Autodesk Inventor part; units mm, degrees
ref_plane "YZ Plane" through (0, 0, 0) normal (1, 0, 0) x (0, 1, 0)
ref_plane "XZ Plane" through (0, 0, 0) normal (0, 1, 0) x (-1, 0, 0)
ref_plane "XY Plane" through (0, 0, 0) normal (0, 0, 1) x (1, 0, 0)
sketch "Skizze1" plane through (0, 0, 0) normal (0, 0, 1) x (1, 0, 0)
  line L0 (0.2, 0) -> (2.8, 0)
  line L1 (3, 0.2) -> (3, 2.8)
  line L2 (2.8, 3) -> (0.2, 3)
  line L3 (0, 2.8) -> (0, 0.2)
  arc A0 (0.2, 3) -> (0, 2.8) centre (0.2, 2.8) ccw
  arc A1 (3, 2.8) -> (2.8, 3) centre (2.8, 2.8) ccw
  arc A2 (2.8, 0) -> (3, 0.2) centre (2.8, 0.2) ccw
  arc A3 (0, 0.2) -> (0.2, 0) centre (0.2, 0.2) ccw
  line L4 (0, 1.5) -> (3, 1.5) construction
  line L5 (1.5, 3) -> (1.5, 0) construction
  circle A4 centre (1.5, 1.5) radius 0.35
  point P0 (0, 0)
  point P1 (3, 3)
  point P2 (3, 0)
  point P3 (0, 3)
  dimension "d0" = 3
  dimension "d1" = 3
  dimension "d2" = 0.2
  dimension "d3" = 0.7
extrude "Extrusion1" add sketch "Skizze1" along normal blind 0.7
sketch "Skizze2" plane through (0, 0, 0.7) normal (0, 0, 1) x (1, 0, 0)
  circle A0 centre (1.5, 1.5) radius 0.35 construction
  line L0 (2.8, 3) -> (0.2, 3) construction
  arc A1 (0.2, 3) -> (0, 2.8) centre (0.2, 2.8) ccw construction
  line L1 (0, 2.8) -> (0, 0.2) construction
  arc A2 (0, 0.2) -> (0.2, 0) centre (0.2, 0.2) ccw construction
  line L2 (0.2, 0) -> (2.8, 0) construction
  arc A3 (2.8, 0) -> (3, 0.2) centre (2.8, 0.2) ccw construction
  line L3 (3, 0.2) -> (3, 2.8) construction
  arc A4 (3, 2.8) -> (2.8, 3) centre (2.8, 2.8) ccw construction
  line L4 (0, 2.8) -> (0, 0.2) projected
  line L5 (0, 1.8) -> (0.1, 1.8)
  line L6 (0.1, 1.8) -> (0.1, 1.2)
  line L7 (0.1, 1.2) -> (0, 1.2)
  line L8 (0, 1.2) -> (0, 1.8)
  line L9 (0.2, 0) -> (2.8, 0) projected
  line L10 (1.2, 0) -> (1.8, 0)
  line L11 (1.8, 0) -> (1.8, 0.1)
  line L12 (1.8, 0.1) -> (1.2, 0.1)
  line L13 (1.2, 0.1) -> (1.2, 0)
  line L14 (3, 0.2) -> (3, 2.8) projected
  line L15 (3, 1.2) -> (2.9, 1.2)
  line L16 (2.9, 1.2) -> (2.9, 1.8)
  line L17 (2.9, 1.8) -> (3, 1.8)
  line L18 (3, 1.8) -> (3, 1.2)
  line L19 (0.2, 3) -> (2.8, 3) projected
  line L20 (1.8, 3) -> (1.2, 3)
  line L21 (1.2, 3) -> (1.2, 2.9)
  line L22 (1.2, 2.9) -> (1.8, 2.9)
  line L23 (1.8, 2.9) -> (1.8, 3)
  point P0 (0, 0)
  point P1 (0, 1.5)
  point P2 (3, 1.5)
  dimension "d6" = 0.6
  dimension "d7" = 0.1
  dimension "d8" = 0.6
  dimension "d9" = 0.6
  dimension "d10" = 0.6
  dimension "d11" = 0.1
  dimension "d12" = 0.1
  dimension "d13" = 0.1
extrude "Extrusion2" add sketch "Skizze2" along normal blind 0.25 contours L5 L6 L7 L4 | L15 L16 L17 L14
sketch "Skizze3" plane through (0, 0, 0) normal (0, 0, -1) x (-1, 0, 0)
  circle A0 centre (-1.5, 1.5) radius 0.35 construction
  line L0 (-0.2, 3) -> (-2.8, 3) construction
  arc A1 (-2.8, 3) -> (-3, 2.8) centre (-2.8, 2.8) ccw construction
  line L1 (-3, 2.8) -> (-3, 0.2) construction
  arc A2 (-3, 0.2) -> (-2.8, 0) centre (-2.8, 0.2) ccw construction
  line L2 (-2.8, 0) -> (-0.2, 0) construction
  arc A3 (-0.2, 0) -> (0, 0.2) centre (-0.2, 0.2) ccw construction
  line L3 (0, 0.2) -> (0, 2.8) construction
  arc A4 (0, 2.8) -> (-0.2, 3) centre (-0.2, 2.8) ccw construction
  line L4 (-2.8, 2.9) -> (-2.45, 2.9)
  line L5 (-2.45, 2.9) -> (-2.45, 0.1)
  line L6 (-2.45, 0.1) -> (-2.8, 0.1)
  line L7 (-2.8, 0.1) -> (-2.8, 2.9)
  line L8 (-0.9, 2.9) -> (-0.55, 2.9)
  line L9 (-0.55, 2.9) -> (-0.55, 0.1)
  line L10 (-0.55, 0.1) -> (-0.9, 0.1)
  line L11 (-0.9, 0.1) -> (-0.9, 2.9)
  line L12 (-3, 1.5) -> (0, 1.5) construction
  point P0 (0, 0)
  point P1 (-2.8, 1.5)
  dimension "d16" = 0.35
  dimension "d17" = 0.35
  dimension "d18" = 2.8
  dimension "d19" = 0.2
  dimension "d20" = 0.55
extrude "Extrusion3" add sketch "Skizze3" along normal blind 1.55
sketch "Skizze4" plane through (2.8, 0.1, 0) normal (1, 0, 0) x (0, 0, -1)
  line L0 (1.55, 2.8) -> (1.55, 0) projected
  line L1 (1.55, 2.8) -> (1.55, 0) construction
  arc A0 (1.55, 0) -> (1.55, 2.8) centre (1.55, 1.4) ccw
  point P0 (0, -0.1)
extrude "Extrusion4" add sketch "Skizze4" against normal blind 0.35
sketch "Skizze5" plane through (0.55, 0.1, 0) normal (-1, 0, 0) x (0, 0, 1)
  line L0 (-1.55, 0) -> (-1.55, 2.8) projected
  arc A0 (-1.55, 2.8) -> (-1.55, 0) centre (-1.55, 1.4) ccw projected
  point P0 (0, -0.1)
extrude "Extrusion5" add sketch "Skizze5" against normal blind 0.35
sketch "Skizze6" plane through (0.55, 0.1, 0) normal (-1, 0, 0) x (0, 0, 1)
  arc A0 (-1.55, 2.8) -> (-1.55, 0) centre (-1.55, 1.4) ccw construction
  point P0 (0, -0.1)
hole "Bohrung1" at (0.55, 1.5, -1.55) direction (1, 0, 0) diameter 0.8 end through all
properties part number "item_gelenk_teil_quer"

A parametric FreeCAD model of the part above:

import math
import FreeCAD as App
import Part
import Sketcher

doc = App.newDocument("Part")
params = doc.addObject("Spreadsheet::Sheet", "Params")
for row, (alias, value) in enumerate([
    ("sketch1_diameter", "0.7 mm"),
    ("sketch1_radius", "0.2 mm"),
    ("pad1_length", "0.7 mm"),
    ("sketch2_width", "0.1 mm"),
    ("sketch2_height", "0.6 mm"),
    ("pad2_length", "0.25 mm"),
    ("sketch3_height", "2.8 mm"),
    ("sketch3_width", "0.35 mm"),
    ("pad3_length", "1.55 mm"),
    ("sketch4_radius", "1.4 mm"),
    ("pad4_length", "0.35 mm"),
    ("sketch5_radius", "1.4 mm"),
    ("pad5_length", "0.35 mm"),
    ("sketch6_diameter", "0.8 mm"),
    ("hole_diameter", "0.8 mm"),
], start=1):
    params.set(f"A{row}", alias)
    params.set(f"B{row}", "=" + value)
    params.setAlias(f"B{row}", alias)

body = doc.addObject("PartDesign::Body", "Body")

sketch1 = body.newObject("Sketcher::SketchObject", "Sketch")
sketch1.AttachmentSupport = (doc.getObject("XY_Plane"), [""])
sketch1.MapMode = "FlatFace"
sketch1.addGeometry([
    Part.ArcOfCircle(Part.Circle(App.Vector(0.2, 0.2, 0), App.Vector(0, 0, 1), 0.2), math.radians(180), math.radians(270)),
    Part.LineSegment(App.Vector(0.2, 0, 0), App.Vector(2.8, 0, 0)),
    Part.ArcOfCircle(Part.Circle(App.Vector(2.8, 0.2, 0), App.Vector(0, 0, 1), 0.2), math.radians(-90), math.radians(0)),
    Part.LineSegment(App.Vector(3, 0.2, 0), App.Vector(3, 2.8, 0)),
    Part.ArcOfCircle(Part.Circle(App.Vector(2.8, 2.8, 0), App.Vector(0, 0, 1), 0.2), math.radians(0), math.radians(90)),
    Part.LineSegment(App.Vector(2.8, 3, 0), App.Vector(0.2, 3, 0)),
    Part.ArcOfCircle(Part.Circle(App.Vector(0.2, 2.8, 0), App.Vector(0, 0, 1), 0.2), math.radians(90), math.radians(180)),
    Part.LineSegment(App.Vector(0, 2.8, 0), App.Vector(0, 0.2, 0)),
    Part.Circle(App.Vector(1.5, 1.5, 0), App.Vector(0, 0, 1), 0.35),
], False)
sketch1.addConstraint([
    Sketcher.Constraint("Tangent", 0, 2, 1, 1),
    Sketcher.Constraint("Tangent", 1, 2, 2, 1),
    Sketcher.Constraint("Tangent", 2, 2, 3, 1),
    Sketcher.Constraint("Tangent", 3, 2, 4, 1),
    Sketcher.Constraint("Tangent", 4, 2, 5, 1),
    Sketcher.Constraint("Tangent", 5, 2, 6, 1),
    Sketcher.Constraint("Tangent", 6, 2, 7, 1),
    Sketcher.Constraint("Tangent", 7, 2, 0, 1),
    Sketcher.Constraint("Horizontal", 1),
    Sketcher.Constraint("Vertical", 3),
    Sketcher.Constraint("Horizontal", 5),
    Sketcher.Constraint("Vertical", 7),
    Sketcher.Constraint("Equal", 0, 2),
    Sketcher.Constraint("Equal", 2, 4),
    Sketcher.Constraint("Equal", 4, 6),
    Sketcher.Constraint("PointOnObject", 0, 2, -1),
    Sketcher.Constraint("PointOnObject", 6, 2, -2),
    Sketcher.Constraint("Equal", 5, 3),
    Sketcher.Constraint("Diameter", 8, 0.7),
    Sketcher.Constraint("Radius", 0, 0.2),
    Sketcher.Constraint("DistanceX", -1, 1, 2, 2, 3.0),
    Sketcher.Constraint("DistanceX", -1, 1, 8, 3, 1.5),
    Sketcher.Constraint("DistanceY", -1, 1, 8, 3, 1.5),
])
sketch1.setExpression("Constraints[18]", "Params.sketch1_diameter")
sketch1.setExpression("Constraints[19]", "Params.sketch1_radius")
pad1 = body.newObject("PartDesign::Pad", "Pad")
pad1.Profile = sketch1
pad1.setExpression("Length", "Params.pad1_length")

sketch2 = body.newObject("Sketcher::SketchObject", "Sketch001")
sketch2.AttachmentSupport = (doc.getObject("XY_Plane"), [""])
sketch2.MapMode = "FlatFace"
sketch2.AttachmentOffset = App.Placement(App.Vector(0, 0, 0.7), App.Rotation())
sketch2.addGeometry([
    Part.LineSegment(App.Vector(0.1, 1.8, 0), App.Vector(0, 1.8, 0)),
    Part.LineSegment(App.Vector(0, 1.8, 0), App.Vector(0, 1.2, 0)),
    Part.LineSegment(App.Vector(0, 1.2, 0), App.Vector(0.1, 1.2, 0)),
    Part.LineSegment(App.Vector(0.1, 1.2, 0), App.Vector(0.1, 1.8, 0)),
    Part.LineSegment(App.Vector(2.9, 1.2, 0), App.Vector(3, 1.2, 0)),
    Part.LineSegment(App.Vector(3, 1.2, 0), App.Vector(3, 1.8, 0)),
    Part.LineSegment(App.Vector(3, 1.8, 0), App.Vector(2.9, 1.8, 0)),
    Part.LineSegment(App.Vector(2.9, 1.8, 0), App.Vector(2.9, 1.2, 0)),
], False)
sketch2.addConstraint([
    Sketcher.Constraint("Coincident", 0, 2, 1, 1),
    Sketcher.Constraint("Coincident", 1, 2, 2, 1),
    Sketcher.Constraint("Coincident", 2, 2, 3, 1),
    Sketcher.Constraint("Coincident", 3, 2, 0, 1),
    Sketcher.Constraint("Coincident", 4, 2, 5, 1),
    Sketcher.Constraint("Coincident", 5, 2, 6, 1),
    Sketcher.Constraint("Coincident", 6, 2, 7, 1),
    Sketcher.Constraint("Coincident", 7, 2, 4, 1),
    Sketcher.Constraint("Horizontal", 0),
    Sketcher.Constraint("Vertical", 1),
    Sketcher.Constraint("Horizontal", 2),
    Sketcher.Constraint("Vertical", 3),
    Sketcher.Constraint("Horizontal", 4),
    Sketcher.Constraint("Vertical", 5),
    Sketcher.Constraint("Horizontal", 6),
    Sketcher.Constraint("Vertical", 7),
    Sketcher.Constraint("PointOnObject", 0, 2, -2),
    Sketcher.Constraint("Horizontal", 2, 2, 4, 2),
    Sketcher.Constraint("Horizontal", 3, 2, 5, 2),
    Sketcher.Constraint("Equal", 2, 4),
    Sketcher.Constraint("DistanceX", 0, 2, 0, 1, 0.1),
    Sketcher.Constraint("DistanceY", 1, 2, 1, 1, 0.6),
    Sketcher.Constraint("DistanceX", -1, 1, 4, 2, 3.0),
    Sketcher.Constraint("DistanceY", -1, 1, 0, 2, 1.8),
])
sketch2.setExpression("Constraints[20]", "Params.sketch2_width")
sketch2.setExpression("Constraints[21]", "Params.sketch2_height")
pad2 = body.newObject("PartDesign::Pad", "Pad001")
pad2.Profile = sketch2
pad2.setExpression("Length", "Params.pad2_length")

sketch3 = body.newObject("Sketcher::SketchObject", "Sketch002")
sketch3.AttachmentSupport = (doc.getObject("XY_Plane"), [""])
sketch3.MapMode = "FlatFace"
sketch3.addGeometry([
    Part.LineSegment(App.Vector(2.45, 2.9, 0), App.Vector(2.8, 2.9, 0)),
    Part.LineSegment(App.Vector(2.8, 2.9, 0), App.Vector(2.8, 0.1, 0)),
    Part.LineSegment(App.Vector(2.8, 0.1, 0), App.Vector(2.45, 0.1, 0)),
    Part.LineSegment(App.Vector(2.45, 0.1, 0), App.Vector(2.45, 2.9, 0)),
    Part.LineSegment(App.Vector(0.55, 2.9, 0), App.Vector(0.9, 2.9, 0)),
    Part.LineSegment(App.Vector(0.9, 2.9, 0), App.Vector(0.9, 0.1, 0)),
    Part.LineSegment(App.Vector(0.9, 0.1, 0), App.Vector(0.55, 0.1, 0)),
    Part.LineSegment(App.Vector(0.55, 0.1, 0), App.Vector(0.55, 2.9, 0)),
], False)
sketch3.addConstraint([
    Sketcher.Constraint("Coincident", 0, 2, 1, 1),
    Sketcher.Constraint("Coincident", 1, 2, 2, 1),
    Sketcher.Constraint("Coincident", 2, 2, 3, 1),
    Sketcher.Constraint("Coincident", 3, 2, 0, 1),
    Sketcher.Constraint("Coincident", 4, 2, 5, 1),
    Sketcher.Constraint("Coincident", 5, 2, 6, 1),
    Sketcher.Constraint("Coincident", 6, 2, 7, 1),
    Sketcher.Constraint("Coincident", 7, 2, 4, 1),
    Sketcher.Constraint("Horizontal", 0),
    Sketcher.Constraint("Vertical", 1),
    Sketcher.Constraint("Horizontal", 2),
    Sketcher.Constraint("Vertical", 3),
    Sketcher.Constraint("Horizontal", 4),
    Sketcher.Constraint("Vertical", 5),
    Sketcher.Constraint("Horizontal", 6),
    Sketcher.Constraint("Vertical", 7),
    Sketcher.Constraint("Horizontal", 3, 2, 4, 2),
    Sketcher.Constraint("Horizontal", 2, 2, 5, 2),
    Sketcher.Constraint("Equal", 2, 4),
    Sketcher.Constraint("DistanceY", 1, 2, 1, 1, 2.8),
    Sketcher.Constraint("DistanceX", 0, 1, 0, 2, 0.35),
    Sketcher.Constraint("DistanceX", -1, 1, 0, 2, 2.8),
    Sketcher.Constraint("DistanceX", -1, 1, 6, 2, 0.55),
    Sketcher.Constraint("DistanceY", -1, 1, 0, 2, 2.9),
])
sketch3.setExpression("Constraints[19]", "Params.sketch3_height")
sketch3.setExpression("Constraints[20]", "Params.sketch3_width")
pad3 = body.newObject("PartDesign::Pad", "Pad002")
pad3.Profile = sketch3
pad3.setExpression("Length", "Params.pad3_length")
pad3.Reversed = True

sketch4 = body.newObject("Sketcher::SketchObject", "Sketch003")
sketch4.AttachmentSupport = (doc.getObject("YZ_Plane"), [""])
sketch4.MapMode = "FlatFace"
sketch4.AttachmentOffset = App.Placement(App.Vector(0, 0, 2.8), App.Rotation())
sketch4.addGeometry([
    Part.ArcOfCircle(Part.Circle(App.Vector(1.5, -1.55, 0), App.Vector(0, 0, 1), 1.4), math.radians(180), math.radians(360)),
    Part.LineSegment(App.Vector(2.9, -1.55, 0), App.Vector(0.1, -1.55, 0)),
], False)
sketch4.addConstraint([
    Sketcher.Constraint("Coincident", 0, 1, 1, 2),
    Sketcher.Constraint("Coincident", 1, 1, 0, 2),
    Sketcher.Constraint("Horizontal", 1),
    Sketcher.Constraint("Radius", 0, 1.4),
    Sketcher.Constraint("DistanceX", -1, 1, 0, 3, 1.5),
    Sketcher.Constraint("DistanceY", 0, 3, -1, 1, 1.55),
    Sketcher.Constraint("DistanceY", 0, 1, -1, 1, 1.55),
])
sketch4.setExpression("Constraints[3]", "Params.sketch4_radius")
pad4 = body.newObject("PartDesign::Pad", "Pad003")
pad4.Profile = sketch4
pad4.setExpression("Length", "Params.pad4_length")
pad4.Reversed = True

sketch5 = body.newObject("Sketcher::SketchObject", "Sketch004")
sketch5.AttachmentSupport = (doc.getObject("YZ_Plane"), [""])
sketch5.MapMode = "FlatFace"
sketch5.AttachmentOffset = App.Placement(App.Vector(0, 0, 0.55), App.Rotation())
sketch5.addGeometry([
    Part.ArcOfCircle(Part.Circle(App.Vector(1.5, -1.55, 0), App.Vector(0, 0, 1), 1.4), math.radians(180), math.radians(360)),
    Part.LineSegment(App.Vector(0.1, -1.55, 0), App.Vector(2.9, -1.55, 0)),
], False)
sketch5.addConstraint([
    Sketcher.Constraint("Coincident", 0, 1, 1, 1),
    Sketcher.Constraint("Coincident", 1, 2, 0, 2),
    Sketcher.Constraint("Horizontal", 1),
    Sketcher.Constraint("Radius", 0, 1.4),
    Sketcher.Constraint("DistanceX", -1, 1, 0, 3, 1.5),
    Sketcher.Constraint("DistanceY", 0, 3, -1, 1, 1.55),
    Sketcher.Constraint("DistanceY", 0, 1, -1, 1, 1.55),
])
sketch5.setExpression("Constraints[3]", "Params.sketch5_radius")
pad5 = body.newObject("PartDesign::Pad", "Pad004")
pad5.Profile = sketch5
pad5.setExpression("Length", "Params.pad5_length")

sketch6 = body.newObject("Sketcher::SketchObject", "Sketch005")
sketch6.AttachmentSupport = (doc.getObject("YZ_Plane"), [""])
sketch6.MapMode = "FlatFace"
sketch6.AttachmentOffset = App.Placement(App.Vector(0, 0, 0.55), App.Rotation())
sketch6.addGeometry(Part.Circle(App.Vector(1.5, -1.55, 0), App.Vector(0, 0, 1), 0.4), False)
sketch6.addConstraint([
    Sketcher.Constraint("Diameter", 0, 0.8),
    Sketcher.Constraint("DistanceX", -1, 1, 0, 3, 1.5),
    Sketcher.Constraint("DistanceY", 0, 3, -1, 1, 1.55),
])
sketch6.setExpression("Constraints[0]", "Params.sketch6_diameter")
doc.recompute()
hole = body.newObject("PartDesign::Hole", "Hole")
hole.Profile = sketch6
hole.ThreadType = "None"
hole.setExpression("Diameter", "Params.hole_diameter")
hole.DepthType = "ThroughAll"
hole.Reversed = True

doc.recompute()
